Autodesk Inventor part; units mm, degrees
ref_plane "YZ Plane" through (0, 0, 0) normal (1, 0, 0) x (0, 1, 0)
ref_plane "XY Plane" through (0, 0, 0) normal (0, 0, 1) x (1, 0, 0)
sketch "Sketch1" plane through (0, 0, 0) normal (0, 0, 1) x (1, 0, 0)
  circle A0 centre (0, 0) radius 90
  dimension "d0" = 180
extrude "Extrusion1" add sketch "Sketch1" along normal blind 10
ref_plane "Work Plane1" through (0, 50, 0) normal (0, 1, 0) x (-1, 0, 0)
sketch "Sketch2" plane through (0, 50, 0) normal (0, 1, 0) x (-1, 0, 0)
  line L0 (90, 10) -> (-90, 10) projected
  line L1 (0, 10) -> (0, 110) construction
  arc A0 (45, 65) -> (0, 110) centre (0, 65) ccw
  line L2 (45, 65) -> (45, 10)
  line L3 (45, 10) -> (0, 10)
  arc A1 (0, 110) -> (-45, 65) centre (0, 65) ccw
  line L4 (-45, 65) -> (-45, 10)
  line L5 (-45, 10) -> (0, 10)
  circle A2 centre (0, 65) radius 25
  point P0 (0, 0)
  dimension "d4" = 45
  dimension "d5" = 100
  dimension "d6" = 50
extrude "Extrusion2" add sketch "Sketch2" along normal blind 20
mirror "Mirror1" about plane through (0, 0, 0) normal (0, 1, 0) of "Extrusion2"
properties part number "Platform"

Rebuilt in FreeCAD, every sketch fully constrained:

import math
import FreeCAD as App
import Part
import Sketcher
from FreeCAD import Vector

doc = App.newDocument("Part")
params = doc.addObject("Spreadsheet::Sheet", "Params")
for row, (alias, value) in enumerate([
    ("sketch1_diameter", "180 mm"),
    ("pad1_length", "10 mm"),
    ("sketch2_diameter", "50 mm"),
    ("sketch2_radius", "45 mm"),
    ("sketch2_height", "55 mm"),
    ("pad2_length", "20 mm"),
], start=1):
    params.set(f"A{row}", alias)
    params.set(f"B{row}", "=" + value)
    params.setAlias(f"B{row}", alias)

body = doc.addObject("PartDesign::Body", "Body")

sketch1 = body.newObject("Sketcher::SketchObject", "Sketch")
sketch1.AttachmentSupport = (doc.getObject("XY_Plane"), [""])
sketch1.MapMode = "FlatFace"
sketch1.addGeometry(Part.Circle(Vector(0, 0, 0), Vector(0, 0, 1), 90), False)
sketch1.addConstraint([
    Sketcher.Constraint("Coincident", 0, 3, -1, 1),
    Sketcher.Constraint("Diameter", 0, 180.0),
])
sketch1.setExpression("Constraints[1]", "Params.sketch1_diameter")
pad1 = body.newObject("PartDesign::Pad", "Pad")
pad1.Profile = sketch1
pad1.setExpression("Length", "Params.pad1_length")

sketch2 = body.newObject("Sketcher::SketchObject", "Sketch001")
sketch2.AttachmentSupport = (doc.getObject("XZ_Plane"), [""])
sketch2.MapMode = "FlatFace"
sketch2.AttachmentOffset = App.Placement(Vector(0, 0, -50), App.Rotation())
sketch2.addGeometry([
    Part.LineSegment(Vector(45, 10, 0), Vector(-45, 10, 0)),
    Part.LineSegment(Vector(-45, 10, 0), Vector(-45, 65, 0)),
    Part.ArcOfCircle(Part.Circle(Vector(0, 65, 0), Vector(0, 0, 1), 45), math.radians(0), math.radians(180)),
    Part.LineSegment(Vector(45, 65, 0), Vector(45, 10, 0)),
    Part.Circle(Vector(0, 65, 0), Vector(0, 0, 1), 25),
], False)
sketch2.addConstraint([
    Sketcher.Constraint("Coincident", 0, 2, 1, 1),
    Sketcher.Constraint("Tangent", 1, 2, 2, 2),
    Sketcher.Constraint("Tangent", 2, 1, 3, 1),
    Sketcher.Constraint("Coincident", 3, 2, 0, 1),
    Sketcher.Constraint("Horizontal", 0),
    Sketcher.Constraint("Vertical", 1),
    Sketcher.Constraint("Vertical", 3),
    Sketcher.Constraint("Coincident", 4, 3, 2, 3),
    Sketcher.Constraint("PointOnObject", 2, 3, -2),
    Sketcher.Constraint("Diameter", 4, 50.0),
    Sketcher.Constraint("Radius", 2, 45.0),
    Sketcher.Constraint("DistanceY", 1, 1, 1, 2, 55.0),
    Sketcher.Constraint("DistanceY", -1, 1, 2, 3, 65.0),
])
sketch2.setExpression("Constraints[9]", "Params.sketch2_diameter")
sketch2.setExpression("Constraints[10]", "Params.sketch2_radius")
sketch2.setExpression("Constraints[11]", "Params.sketch2_height")
pad2 = body.newObject("PartDesign::Pad", "Pad001")
pad2.Profile = sketch2
pad2.setExpression("Length", "Params.pad2_length")
pad2.Reversed = True
doc.recompute()

mirrored = body.newObject("PartDesign::Mirrored", "Mirrored")
mirrored.Originals = [pad2]
mirrored.MirrorPlane = (doc.getObject("XZ_Plane"), [""])
body.Tip = mirrored

doc.recompute()
